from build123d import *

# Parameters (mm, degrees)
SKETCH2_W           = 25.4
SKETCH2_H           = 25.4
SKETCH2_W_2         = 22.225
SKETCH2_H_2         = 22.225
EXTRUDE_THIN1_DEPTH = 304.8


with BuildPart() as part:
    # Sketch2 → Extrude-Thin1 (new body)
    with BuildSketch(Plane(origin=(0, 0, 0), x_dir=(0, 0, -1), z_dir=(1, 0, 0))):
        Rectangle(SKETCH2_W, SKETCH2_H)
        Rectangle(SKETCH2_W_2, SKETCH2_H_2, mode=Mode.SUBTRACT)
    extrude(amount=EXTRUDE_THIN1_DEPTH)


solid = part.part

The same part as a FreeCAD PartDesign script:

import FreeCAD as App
import Part
import Sketcher
Q = App.Units.Quantity


def add_polygon(sketch, points):
    """Adds a closed chain of lines whose ends are joined by coincident constraints."""
    first, n = sketch.GeometryCount, len(points)
    for a, b in zip(points, points[1:] + points[:1]):
        sketch.addGeometry(Part.LineSegment(App.Vector(*a, 0), App.Vector(*b, 0)), False)
    for i in range(n):
        sketch.addConstraint(Sketcher.Constraint("Coincident", first + i, 2, first + (i + 1) % n, 1))

doc = App.newDocument("Part")
body = doc.addObject("PartDesign::Body", "Body")

# Sketch on YZ plane
sketch1 = body.newObject("Sketcher::SketchObject", "Sketch")
sketch1.AttachmentSupport = (doc.getObject("YZ_Plane"), [""])
sketch1.MapMode = "FlatFace"
add_polygon(sketch1, [(13, 13), (-13, 13), (-13, -13), (13, -13)])  # lines 0-3
add_polygon(sketch1, [(-11, -11), (-11, 11), (11, 11), (11, -11)])  # lines 4-7
sketch1.addConstraint([
    Sketcher.Constraint("Horizontal", 0),
    Sketcher.Constraint("Vertical", 1),
    Sketcher.Constraint("Horizontal", 2),
    Sketcher.Constraint("Vertical", 3),
    Sketcher.Constraint("Vertical", 4),
    Sketcher.Constraint("Horizontal", 5),
    Sketcher.Constraint("Vertical", 6),
    Sketcher.Constraint("Horizontal", 7),
    Sketcher.Constraint("Symmetric", 0, 2, 2, 2, -1, 1),
    Sketcher.Constraint("Symmetric", 4, 2, 6, 2, -1, 1),
    Sketcher.Constraint("Equal", 2, 1),
    Sketcher.Constraint("Equal", 7, 4),
    Sketcher.Constraint("DistanceX", 0, 2, 0, 1, Q("1 in")),
    Sketcher.Constraint("DistanceX", 5, 1, 5, 2, Q("0.875 in")),
])
pad1 = body.newObject("PartDesign::Pad", "Pad")
pad1.Profile = sketch1
pad1.Length = Q("12 in")

doc.recompute()
